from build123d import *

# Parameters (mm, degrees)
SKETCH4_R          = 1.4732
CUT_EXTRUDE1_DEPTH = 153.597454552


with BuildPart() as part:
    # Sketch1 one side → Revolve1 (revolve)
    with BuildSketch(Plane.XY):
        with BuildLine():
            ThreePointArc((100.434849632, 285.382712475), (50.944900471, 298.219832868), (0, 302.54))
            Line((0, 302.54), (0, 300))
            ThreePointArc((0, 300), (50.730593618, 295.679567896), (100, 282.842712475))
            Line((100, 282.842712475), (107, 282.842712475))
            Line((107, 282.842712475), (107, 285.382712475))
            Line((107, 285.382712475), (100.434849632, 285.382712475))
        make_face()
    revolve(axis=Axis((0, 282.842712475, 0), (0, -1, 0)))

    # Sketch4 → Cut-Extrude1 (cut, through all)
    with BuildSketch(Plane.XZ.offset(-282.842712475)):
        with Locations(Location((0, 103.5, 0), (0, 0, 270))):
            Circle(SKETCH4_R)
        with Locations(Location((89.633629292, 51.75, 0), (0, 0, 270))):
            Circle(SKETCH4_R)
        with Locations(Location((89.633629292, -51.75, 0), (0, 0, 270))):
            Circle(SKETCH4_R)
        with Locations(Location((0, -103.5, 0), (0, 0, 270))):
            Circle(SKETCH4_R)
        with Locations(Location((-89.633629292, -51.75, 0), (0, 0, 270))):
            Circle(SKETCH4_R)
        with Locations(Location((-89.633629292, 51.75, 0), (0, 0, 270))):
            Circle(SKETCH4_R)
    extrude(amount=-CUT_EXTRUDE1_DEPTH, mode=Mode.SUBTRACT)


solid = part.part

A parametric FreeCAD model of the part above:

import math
import FreeCAD as App
import Part
import Sketcher
from FreeCAD import Vector

doc = App.newDocument("Part")
body = doc.addObject("PartDesign::Body", "Body")

# Sketch on XY plane
sketch1 = body.newObject("Sketcher::SketchObject", "Sketch")
sketch1.AttachmentSupport = (doc.getObject("XY_Plane"), [""])
sketch1.MapMode = "FlatFace"
sketch1.addGeometry([
    Part.ArcOfCircle(Part.Circle(Vector(0, 0, 0), Vector(0, 0, 1), 302.5), math.radians(70.61), math.radians(90)),  # 0
    Part.LineSegment(Vector(0, 302.5, 0), Vector(0, 300, 0)),  # 1
    Part.ArcOfCircle(Part.Circle(Vector(0, 0, 0), Vector(0, 0, 1), 300), math.radians(70.53), math.radians(90)),  # 2
    Part.LineSegment(Vector(100, 282.8, 0), Vector(107, 282.8, 0)),  # 3
    Part.LineSegment(Vector(107, 282.8, 0), Vector(107, 285.4, 0)),  # 4
    Part.LineSegment(Vector(107, 285.4, 0), Vector(100.4, 285.4, 0)),  # 5
], False)
sketch1.addConstraint([
    Sketcher.Constraint("Coincident", 0, 2, 1, 1),
    Sketcher.Constraint("Coincident", 1, 2, 2, 2),
    Sketcher.Constraint("Coincident", 2, 1, 3, 1),
    Sketcher.Constraint("Coincident", 3, 2, 4, 1),
    Sketcher.Constraint("Coincident", 4, 2, 5, 1),
    Sketcher.Constraint("Coincident", 5, 2, 0, 1),
    Sketcher.Constraint("Vertical", 1),
    Sketcher.Constraint("Horizontal", 3),
    Sketcher.Constraint("Vertical", 4),
    Sketcher.Constraint("Horizontal", 5),
    Sketcher.Constraint("Coincident", 0, 3, -1, 1),
    Sketcher.Constraint("Coincident", 2, 3, -1, 1),
    Sketcher.Constraint("PointOnObject", 0, 2, -2),
    Sketcher.Constraint("Equal", 1, 4),
    Sketcher.Constraint("Radius", 2, 300.0),
    Sketcher.Constraint("DistanceX", 3, 1, 3, 2, 7.0),
    Sketcher.Constraint("Radius", 0, 302.54),
    Sketcher.Constraint("DistanceX", -1, 1, 3, 2, 107.0),
])
revolution = body.newObject("PartDesign::Revolution", "Revolution")
revolution.Profile = sketch1
revolution.ReferenceAxis = (sketch1, ["V_Axis"])
revolution.Angle = 360

# Sketch on XZ plane
sketch2 = body.newObject("Sketcher::SketchObject", "Sketch001")
sketch2.AttachmentSupport = (doc.getObject("XZ_Plane"), [""])
sketch2.MapMode = "FlatFace"
sketch2.AttachmentOffset = App.Placement(Vector(0, 0, -282.842712), App.Rotation())
sketch2.addGeometry([
    Part.Circle(Vector(0, 103.5, 0), Vector(0, 0, 1), 1.5),  # 0
    Part.Circle(Vector(89.6, 51.8, 0), Vector(0, 0, 1), 1.5),  # 1
    Part.Circle(Vector(89.6, -51.8, 0), Vector(0, 0, 1), 1.5),  # 2
    Part.Circle(Vector(0, -103.5, 0), Vector(0, 0, 1), 1.5),  # 3
    Part.Circle(Vector(-89.6, -51.8, 0), Vector(0, 0, 1), 1.5),  # 4
    Part.Circle(Vector(-89.6, 51.8, 0), Vector(0, 0, 1), 1.5),  # 5
], False)
sketch2.addConstraint([
    Sketcher.Constraint("Equal", 0, 1),
    Sketcher.Constraint("Equal", 1, 2),
    Sketcher.Constraint("Equal", 2, 3),
    Sketcher.Constraint("Equal", 3, 4),
    Sketcher.Constraint("Equal", 4, 5),
    Sketcher.Constraint("Symmetric", 0, 3, 3, 3, -1, 1),
    Sketcher.Constraint("Symmetric", 1, 3, 4, 3, -1, 1),
    Sketcher.Constraint("Symmetric", 2, 3, 5, 3, -1, 1),
    Sketcher.Constraint("Symmetric", 2, 3, 4, 3, -2),
    Sketcher.Constraint("PointOnObject", 0, 3, -2),
    Sketcher.Constraint("DistanceY", 3, 3, 0, 3, 207.0),
    Sketcher.Constraint("Diameter", 0, 2.9464),
    Sketcher.Constraint("DistanceY", 2, 3, 1, 3, 103.5),
    Sketcher.Constraint("DistanceX", -1, 1, 1, 3, 89.633629),
])
pocket1 = body.newObject("PartDesign::Pocket", "Pocket")
pocket1.Profile = sketch2
pocket1.Type = "ThroughAll"

doc.recompute()
